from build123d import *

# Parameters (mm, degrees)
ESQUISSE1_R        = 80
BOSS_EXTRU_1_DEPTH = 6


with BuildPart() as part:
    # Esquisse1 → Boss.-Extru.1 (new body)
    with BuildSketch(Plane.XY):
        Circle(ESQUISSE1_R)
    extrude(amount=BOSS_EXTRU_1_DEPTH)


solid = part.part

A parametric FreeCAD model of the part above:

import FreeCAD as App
import Part
import Sketcher

V = App.Vector

doc = App.newDocument("Part")
body = doc.addObject("PartDesign::Body", "Body")

# Sketch on XY plane
sketch1 = body.newObject("Sketcher::SketchObject", "Sketch")
sketch1.AttachmentSupport = (doc.getObject("XY_Plane"), [""])
sketch1.MapMode = "FlatFace"
sketch1.addGeometry(Part.Circle(V(0, 0, 0), V(0, 0, 1), 80), False)
sketch1.addConstraint([
    Sketcher.Constraint("Coincident", 0, 3, -1, 1),
    Sketcher.Constraint("Diameter", 0, 160.0),
])
pad1 = body.newObject("PartDesign::Pad", "Pad")
pad1.Profile = sketch1
pad1.Length = 6

doc.recompute()
